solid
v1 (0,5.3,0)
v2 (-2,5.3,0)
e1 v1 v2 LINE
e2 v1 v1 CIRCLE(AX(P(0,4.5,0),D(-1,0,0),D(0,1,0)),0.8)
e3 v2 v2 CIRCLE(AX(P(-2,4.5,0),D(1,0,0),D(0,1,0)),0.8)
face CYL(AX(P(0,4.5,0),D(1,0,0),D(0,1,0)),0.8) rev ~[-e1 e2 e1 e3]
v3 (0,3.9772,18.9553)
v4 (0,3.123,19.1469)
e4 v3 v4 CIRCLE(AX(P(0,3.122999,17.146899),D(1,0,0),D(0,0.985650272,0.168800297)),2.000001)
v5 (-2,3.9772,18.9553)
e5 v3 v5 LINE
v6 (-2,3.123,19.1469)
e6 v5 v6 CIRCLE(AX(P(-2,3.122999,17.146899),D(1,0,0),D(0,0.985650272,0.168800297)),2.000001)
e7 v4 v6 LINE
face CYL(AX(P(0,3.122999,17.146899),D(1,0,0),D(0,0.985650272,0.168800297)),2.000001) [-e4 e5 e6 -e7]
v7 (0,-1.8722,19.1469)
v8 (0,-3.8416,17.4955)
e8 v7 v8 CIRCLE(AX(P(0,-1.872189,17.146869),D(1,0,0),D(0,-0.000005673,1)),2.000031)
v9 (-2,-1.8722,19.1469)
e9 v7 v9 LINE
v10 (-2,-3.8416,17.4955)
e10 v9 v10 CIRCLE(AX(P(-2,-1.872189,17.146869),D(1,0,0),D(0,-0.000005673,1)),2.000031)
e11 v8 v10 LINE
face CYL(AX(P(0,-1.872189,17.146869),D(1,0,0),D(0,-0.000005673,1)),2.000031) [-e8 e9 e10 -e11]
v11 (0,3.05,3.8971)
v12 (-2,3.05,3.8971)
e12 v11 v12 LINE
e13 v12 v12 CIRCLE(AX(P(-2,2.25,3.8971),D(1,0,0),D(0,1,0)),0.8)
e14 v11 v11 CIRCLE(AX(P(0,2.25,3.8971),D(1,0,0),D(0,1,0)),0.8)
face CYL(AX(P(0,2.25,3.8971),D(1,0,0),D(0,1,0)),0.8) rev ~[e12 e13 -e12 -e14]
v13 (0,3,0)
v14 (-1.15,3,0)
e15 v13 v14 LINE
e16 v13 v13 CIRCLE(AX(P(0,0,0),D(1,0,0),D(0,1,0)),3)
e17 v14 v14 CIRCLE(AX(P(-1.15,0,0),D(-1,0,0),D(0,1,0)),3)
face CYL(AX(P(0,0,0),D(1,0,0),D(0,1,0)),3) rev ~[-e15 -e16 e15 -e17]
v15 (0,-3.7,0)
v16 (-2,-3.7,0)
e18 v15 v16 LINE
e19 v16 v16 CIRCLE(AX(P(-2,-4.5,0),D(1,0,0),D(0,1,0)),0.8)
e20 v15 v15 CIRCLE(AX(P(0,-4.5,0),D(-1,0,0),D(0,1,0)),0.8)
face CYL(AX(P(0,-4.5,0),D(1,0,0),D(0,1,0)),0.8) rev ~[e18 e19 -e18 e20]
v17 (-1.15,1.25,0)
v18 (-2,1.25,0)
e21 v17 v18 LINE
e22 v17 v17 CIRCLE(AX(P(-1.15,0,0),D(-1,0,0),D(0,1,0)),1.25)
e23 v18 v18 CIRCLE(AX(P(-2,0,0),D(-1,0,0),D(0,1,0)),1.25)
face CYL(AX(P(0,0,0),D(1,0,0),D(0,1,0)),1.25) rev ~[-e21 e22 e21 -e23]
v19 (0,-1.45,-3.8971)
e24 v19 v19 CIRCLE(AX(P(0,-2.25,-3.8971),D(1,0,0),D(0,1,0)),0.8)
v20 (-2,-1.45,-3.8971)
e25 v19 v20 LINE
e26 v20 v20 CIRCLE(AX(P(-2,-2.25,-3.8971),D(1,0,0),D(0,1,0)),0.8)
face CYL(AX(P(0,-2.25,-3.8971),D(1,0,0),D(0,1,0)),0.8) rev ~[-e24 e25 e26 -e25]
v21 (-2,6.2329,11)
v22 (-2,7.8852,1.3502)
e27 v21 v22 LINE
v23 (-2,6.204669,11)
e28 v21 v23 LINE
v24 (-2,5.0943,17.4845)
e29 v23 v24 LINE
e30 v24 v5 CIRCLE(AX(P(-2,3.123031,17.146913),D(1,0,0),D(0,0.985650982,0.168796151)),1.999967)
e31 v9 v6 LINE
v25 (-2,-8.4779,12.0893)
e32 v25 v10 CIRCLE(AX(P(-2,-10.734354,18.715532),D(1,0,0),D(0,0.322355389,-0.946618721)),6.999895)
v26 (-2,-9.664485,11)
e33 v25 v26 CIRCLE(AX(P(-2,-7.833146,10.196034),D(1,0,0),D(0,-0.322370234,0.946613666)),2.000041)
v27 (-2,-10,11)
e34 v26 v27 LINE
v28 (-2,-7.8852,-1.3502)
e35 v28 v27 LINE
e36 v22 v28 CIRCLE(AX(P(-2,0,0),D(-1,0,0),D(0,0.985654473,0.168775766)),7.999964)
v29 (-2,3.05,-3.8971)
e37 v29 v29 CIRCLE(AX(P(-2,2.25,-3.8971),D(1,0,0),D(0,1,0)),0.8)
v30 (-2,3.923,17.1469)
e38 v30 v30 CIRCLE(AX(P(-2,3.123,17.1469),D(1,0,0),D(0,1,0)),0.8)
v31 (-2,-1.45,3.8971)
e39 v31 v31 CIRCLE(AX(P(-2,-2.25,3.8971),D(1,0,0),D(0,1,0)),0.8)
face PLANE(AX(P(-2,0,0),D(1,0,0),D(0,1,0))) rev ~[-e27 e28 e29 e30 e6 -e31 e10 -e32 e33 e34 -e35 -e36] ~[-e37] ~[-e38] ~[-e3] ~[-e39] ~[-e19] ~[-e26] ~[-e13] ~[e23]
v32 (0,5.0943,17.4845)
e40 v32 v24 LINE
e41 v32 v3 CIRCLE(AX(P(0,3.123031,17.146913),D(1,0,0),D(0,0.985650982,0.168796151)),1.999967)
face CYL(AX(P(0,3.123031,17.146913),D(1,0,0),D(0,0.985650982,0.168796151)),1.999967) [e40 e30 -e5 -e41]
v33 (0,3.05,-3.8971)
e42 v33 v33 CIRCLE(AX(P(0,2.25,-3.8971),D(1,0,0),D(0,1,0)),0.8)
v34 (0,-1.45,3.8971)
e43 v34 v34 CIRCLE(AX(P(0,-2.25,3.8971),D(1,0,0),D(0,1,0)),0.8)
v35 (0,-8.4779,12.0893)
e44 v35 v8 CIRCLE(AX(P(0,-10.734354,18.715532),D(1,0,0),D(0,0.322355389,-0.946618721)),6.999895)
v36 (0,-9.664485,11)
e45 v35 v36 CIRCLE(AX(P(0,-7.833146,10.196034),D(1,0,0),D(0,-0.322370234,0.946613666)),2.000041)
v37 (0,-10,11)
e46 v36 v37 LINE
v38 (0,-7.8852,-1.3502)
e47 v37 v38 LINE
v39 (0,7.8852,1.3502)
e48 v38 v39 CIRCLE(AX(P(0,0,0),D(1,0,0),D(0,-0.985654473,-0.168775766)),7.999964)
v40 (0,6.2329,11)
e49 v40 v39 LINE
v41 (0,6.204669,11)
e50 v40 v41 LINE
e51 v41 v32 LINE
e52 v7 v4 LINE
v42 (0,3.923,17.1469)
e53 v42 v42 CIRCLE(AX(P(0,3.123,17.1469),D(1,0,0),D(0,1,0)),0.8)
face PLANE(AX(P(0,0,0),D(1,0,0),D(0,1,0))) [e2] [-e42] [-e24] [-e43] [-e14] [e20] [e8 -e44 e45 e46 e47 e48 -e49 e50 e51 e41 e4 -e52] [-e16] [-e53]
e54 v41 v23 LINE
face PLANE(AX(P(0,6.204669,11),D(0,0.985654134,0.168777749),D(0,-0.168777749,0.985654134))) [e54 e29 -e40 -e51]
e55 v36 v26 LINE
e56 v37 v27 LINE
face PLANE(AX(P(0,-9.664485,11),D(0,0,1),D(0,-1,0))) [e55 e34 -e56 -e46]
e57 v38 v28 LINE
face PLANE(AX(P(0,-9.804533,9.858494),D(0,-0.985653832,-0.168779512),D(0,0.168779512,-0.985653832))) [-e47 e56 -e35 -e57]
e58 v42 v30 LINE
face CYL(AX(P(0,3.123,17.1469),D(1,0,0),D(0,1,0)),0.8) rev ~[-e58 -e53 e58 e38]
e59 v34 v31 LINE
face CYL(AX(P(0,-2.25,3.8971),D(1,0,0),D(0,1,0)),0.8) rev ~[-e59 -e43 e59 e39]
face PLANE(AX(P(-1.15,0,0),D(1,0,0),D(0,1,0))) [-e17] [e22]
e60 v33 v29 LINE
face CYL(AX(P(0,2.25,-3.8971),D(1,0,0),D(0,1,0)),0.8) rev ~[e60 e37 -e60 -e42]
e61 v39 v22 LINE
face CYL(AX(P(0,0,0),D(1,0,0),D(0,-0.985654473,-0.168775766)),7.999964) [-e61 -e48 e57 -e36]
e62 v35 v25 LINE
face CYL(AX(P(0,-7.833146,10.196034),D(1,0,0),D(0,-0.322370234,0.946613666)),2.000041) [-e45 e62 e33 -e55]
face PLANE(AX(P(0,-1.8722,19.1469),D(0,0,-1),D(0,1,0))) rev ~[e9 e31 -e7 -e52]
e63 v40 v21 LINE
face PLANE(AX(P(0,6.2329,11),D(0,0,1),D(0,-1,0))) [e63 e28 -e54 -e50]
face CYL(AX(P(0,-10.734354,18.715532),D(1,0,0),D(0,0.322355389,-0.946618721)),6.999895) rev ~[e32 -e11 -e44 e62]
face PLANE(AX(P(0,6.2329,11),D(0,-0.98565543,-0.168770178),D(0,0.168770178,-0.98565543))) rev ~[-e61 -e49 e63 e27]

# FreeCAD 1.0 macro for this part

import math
import FreeCAD as App
import Part
import Sketcher

V = App.Vector

doc = App.newDocument("Part")
body = doc.addObject("PartDesign::Body", "Body")

sketch1 = body.newObject("Sketcher::SketchObject", "Sketch")
sketch1.AttachmentSupport = (doc.getObject("YZ_Plane"), [""])
sketch1.MapMode = "FlatFace"
sketch1.addGeometry([
    Part.ArcOfCircle(Part.Circle(V(0, 0, 0), V(0, 0, 1), 8), math.radians(-170), math.radians(10)),
    Part.LineSegment(V(7.885, 1.35, 0), V(6.233, 11, 0)),
    Part.LineSegment(V(6.233, 11, 0), V(6.205, 11, 0)),
    Part.LineSegment(V(6.205, 11, 0), V(5.094, 17.485, 0)),
    Part.ArcOfCircle(Part.Circle(V(3.123, 17.147, 0), V(0, 0, 1), 2), math.radians(10), math.radians(65)),
    Part.ArcOfCircle(Part.Circle(V(3.123, 17.147, 0), V(0, 0, 1), 2), math.radians(65), math.radians(90)),
    Part.LineSegment(V(3.123, 19.147, 0), V(-1.872, 19.147, 0)),
    Part.ArcOfCircle(Part.Circle(V(-1.872, 17.147, 0), V(0, 0, 1), 2), math.radians(90), math.radians(170)),
    Part.ArcOfCircle(Part.Circle(V(-10.734, 18.716, 0), V(0, 0, 1), 7), math.radians(-71), math.radians(-10)),
    Part.ArcOfCircle(Part.Circle(V(-7.833, 10.196, 0), V(0, 0, 1), 2), math.radians(109), math.radians(156)),
    Part.LineSegment(V(-9.664, 11, 0), V(-10, 11, 0)),
    Part.LineSegment(V(-10, 11, 0), V(-7.885, -1.35, 0)),
    Part.Circle(V(0, 0, 0), V(0, 0, 1), 1.25),
    Part.Circle(V(2.25, 3.897, 0), V(0, 0, 1), 0.8),
    Part.Circle(V(-4.5, 0, 0), V(0, 0, 1), 0.8),
    Part.Circle(V(4.5, 0, 0), V(0, 0, 1), 0.8),
    Part.Circle(V(-2.25, 3.897, 0), V(0, 0, 1), 0.8),
    Part.Circle(V(-2.25, -3.897, 0), V(0, 0, 1), 0.8),
    Part.Circle(V(2.25, -3.897, 0), V(0, 0, 1), 0.8),
    Part.Circle(V(3.123, 17.147, 0), V(0, 0, 1), 0.8),
], False)
sketch1.addConstraint([
    Sketcher.Constraint("Tangent", 0, 2, 1, 1),
    Sketcher.Constraint("Coincident", 1, 2, 2, 1),
    Sketcher.Constraint("Coincident", 2, 2, 3, 1),
    Sketcher.Constraint("Tangent", 3, 2, 4, 1),
    Sketcher.Constraint("Tangent", 4, 2, 5, 1),
    Sketcher.Constraint("Tangent", 5, 2, 6, 1),
    Sketcher.Constraint("Tangent", 6, 2, 7, 1),
    Sketcher.Constraint("Tangent", 7, 2, 8, 2),
    Sketcher.Constraint("Tangent", 8, 1, 9, 1),
    Sketcher.Constraint("Coincident", 9, 2, 10, 1),
    Sketcher.Constraint("Coincident", 10, 2, 11, 1),
    Sketcher.Constraint("Tangent", 11, 2, 0, 1),
    Sketcher.Constraint("Horizontal", 2),
    Sketcher.Constraint("Horizontal", 6),
    Sketcher.Constraint("Horizontal", 10),
    Sketcher.Constraint("Coincident", 0, 3, -1, 1),
    Sketcher.Constraint("Coincident", 12, 3, -1, 1),
    Sketcher.Constraint("Coincident", 19, 3, 4, 3),
    Sketcher.Constraint("Equal", 4, 5),
    Sketcher.Constraint("Equal", 5, 7),
    Sketcher.Constraint("Equal", 7, 9),
    Sketcher.Constraint("Equal", 13, 14),
    Sketcher.Constraint("Equal", 14, 15),
    Sketcher.Constraint("Equal", 15, 16),
    Sketcher.Constraint("Equal", 16, 17),
    Sketcher.Constraint("Equal", 17, 18),
    Sketcher.Constraint("Equal", 18, 19),
    Sketcher.Constraint("Symmetric", 14, 3, 15, 3, -1, 1),
    Sketcher.Constraint("Symmetric", 13, 3, 17, 3, -1, 1),
    Sketcher.Constraint("Symmetric", 16, 3, 18, 3, -1, 1),
    Sketcher.Constraint("Symmetric", 13, 3, 16, 3, -2),
    Sketcher.Constraint("PointOnObject", 14, 3, -1),
    Sketcher.Constraint("Parallel", 1, 3),
    Sketcher.Constraint("Parallel", 3, 11),
    Sketcher.Constraint("Horizontal", 2, 2, 9, 2),
    Sketcher.Constraint("Radius", 0, 8.0),
    Sketcher.Constraint("Radius", 4, 2.0),
    Sketcher.Constraint("Radius", 8, 7.0),
    Sketcher.Constraint("Diameter", 12, 2.5),
    Sketcher.Constraint("Diameter", 13, 1.6),
    Sketcher.Constraint("DistanceY", -1, 1, 1, 2, 11.0),
    Sketcher.Constraint("DistanceX", 10, 2, -1, 1, 10.0),
    Sketcher.Constraint("DistanceX", 14, 3, 15, 3, 9.0),
    Sketcher.Constraint("DistanceX", 16, 3, 13, 3, 4.5),
    Sketcher.Constraint("DistanceX", 4, 3, 1, 2, 3.11),
    Sketcher.Constraint("DistanceX", 8, 3, 9, 2, 1.07),
    Sketcher.Constraint("DistanceX", 2, 2, 2, 1, 0.0282),
    Sketcher.Constraint("DistanceX", 6, 2, 6, 1, 4.9952),
    Sketcher.Constraint("DistanceX", 10, 2, 10, 1, 0.3355),
    Sketcher.Constraint("DistanceY", -1, 1, 13, 3, 3.897),
    Sketcher.Constraint("DistanceX", 4, 2, 3, 2, 1.117),
])
pad1 = body.newObject("PartDesign::Pad", "Pad")
pad1.Profile = sketch1
pad1.Length = 2
pad1.Reversed = True

sketch2 = body.newObject("Sketcher::SketchObject", "Sketch001")
sketch2.AttachmentSupport = (doc.getObject("YZ_Plane"), [""])
sketch2.MapMode = "FlatFace"
sketch2.addGeometry([
    Part.Circle(V(0, 0, 0), V(0, 0, 1), 3),
    Part.Circle(V(0, 0, 0), V(0, 0, 1), 1.2),
], False)
sketch2.addConstraint([
    Sketcher.Constraint("Coincident", 0, 3, -1, 1),
    Sketcher.Constraint("Coincident", 1, 3, -1, 1),
    Sketcher.Constraint("Diameter", 0, 6.0),
    Sketcher.Constraint("Diameter", 1, 2.5),
])
pocket1 = body.newObject("PartDesign::Pocket", "Pocket")
pocket1.Profile = sketch2
pocket1.Length = 1.15

doc.recompute()
